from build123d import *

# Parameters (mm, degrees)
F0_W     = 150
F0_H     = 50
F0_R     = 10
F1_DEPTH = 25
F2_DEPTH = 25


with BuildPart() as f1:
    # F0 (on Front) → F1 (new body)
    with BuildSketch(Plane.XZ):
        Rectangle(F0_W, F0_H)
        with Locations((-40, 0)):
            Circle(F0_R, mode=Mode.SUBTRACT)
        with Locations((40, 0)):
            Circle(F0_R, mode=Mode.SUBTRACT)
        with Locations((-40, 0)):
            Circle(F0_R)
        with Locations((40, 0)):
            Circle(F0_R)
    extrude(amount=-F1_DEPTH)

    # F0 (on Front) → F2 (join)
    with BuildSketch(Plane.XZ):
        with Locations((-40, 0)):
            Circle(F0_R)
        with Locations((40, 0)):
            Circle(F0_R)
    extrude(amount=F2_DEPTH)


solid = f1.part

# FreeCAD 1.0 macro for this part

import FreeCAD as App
import Part
import Sketcher
Q = App.Units.Quantity

doc = App.newDocument("Part")
body = doc.addObject("PartDesign::Body", "Body")

sketch1 = doc.addObject("Sketcher::SketchObject", "Sketch")
body.addObject(sketch1)
sketch1.AttachmentSupport = (doc.XZ_Plane, [""])
sketch1.MapMode = "FlatFace"
sketch1.addGeometry([
    Part.LineSegment(App.Vector(-75, 25, 0), App.Vector(-75, -25, 0)),
    Part.LineSegment(App.Vector(-75, -25, 0), App.Vector(75, -25, 0)),
    Part.LineSegment(App.Vector(75, -25, 0), App.Vector(75, 25, 0)),
    Part.LineSegment(App.Vector(75, 25, 0), App.Vector(-75, 25, 0)),
], False)
sketch1.addConstraint([
    Sketcher.Constraint("Coincident", 0, 2, 1, 1),
    Sketcher.Constraint("Coincident", 1, 2, 2, 1),
    Sketcher.Constraint("Coincident", 2, 2, 3, 1),
    Sketcher.Constraint("Coincident", 3, 2, 0, 1),
    Sketcher.Constraint("Vertical", 0),
    Sketcher.Constraint("Horizontal", 1),
    Sketcher.Constraint("Vertical", 2),
    Sketcher.Constraint("Horizontal", 3),
    Sketcher.Constraint("Symmetric", 0, 2, 2, 2, -1, 1),
    Sketcher.Constraint("DistanceX", 1, 1, 1, 2, Q("150 mm")),
    Sketcher.Constraint("DistanceY", 0, 2, 0, 1, Q("50 mm")),
])
pad1 = doc.addObject("PartDesign::Pad", "Pad")
body.addObject(pad1)
pad1.Profile = sketch1
pad1.Length = 25
pad1.Reversed = True

sketch2 = doc.addObject("Sketcher::SketchObject", "Sketch001")
body.addObject(sketch2)
sketch2.AttachmentSupport = (doc.XZ_Plane, [""])
sketch2.MapMode = "FlatFace"
sketch2.addGeometry([
    Part.Circle(App.Vector(-40, 0, 0), App.Vector(0, 0, 1), 10),
    Part.Circle(App.Vector(40, 0, 0), App.Vector(0, 0, 1), 10),
], False)
sketch2.addConstraint([
    Sketcher.Constraint("Equal", 0, 1),
    Sketcher.Constraint("Symmetric", 0, 3, 1, 3, -1, 1),
    Sketcher.Constraint("PointOnObject", 0, 3, -1),
    Sketcher.Constraint("Diameter", 0, Q("20 mm")),
    Sketcher.Constraint("DistanceX", 0, 3, -1, 1, Q("40 mm")),
])
pad2 = doc.addObject("PartDesign::Pad", "Pad001")
body.addObject(pad2)
pad2.Profile = sketch2
pad2.Length = 25

doc.recompute()
